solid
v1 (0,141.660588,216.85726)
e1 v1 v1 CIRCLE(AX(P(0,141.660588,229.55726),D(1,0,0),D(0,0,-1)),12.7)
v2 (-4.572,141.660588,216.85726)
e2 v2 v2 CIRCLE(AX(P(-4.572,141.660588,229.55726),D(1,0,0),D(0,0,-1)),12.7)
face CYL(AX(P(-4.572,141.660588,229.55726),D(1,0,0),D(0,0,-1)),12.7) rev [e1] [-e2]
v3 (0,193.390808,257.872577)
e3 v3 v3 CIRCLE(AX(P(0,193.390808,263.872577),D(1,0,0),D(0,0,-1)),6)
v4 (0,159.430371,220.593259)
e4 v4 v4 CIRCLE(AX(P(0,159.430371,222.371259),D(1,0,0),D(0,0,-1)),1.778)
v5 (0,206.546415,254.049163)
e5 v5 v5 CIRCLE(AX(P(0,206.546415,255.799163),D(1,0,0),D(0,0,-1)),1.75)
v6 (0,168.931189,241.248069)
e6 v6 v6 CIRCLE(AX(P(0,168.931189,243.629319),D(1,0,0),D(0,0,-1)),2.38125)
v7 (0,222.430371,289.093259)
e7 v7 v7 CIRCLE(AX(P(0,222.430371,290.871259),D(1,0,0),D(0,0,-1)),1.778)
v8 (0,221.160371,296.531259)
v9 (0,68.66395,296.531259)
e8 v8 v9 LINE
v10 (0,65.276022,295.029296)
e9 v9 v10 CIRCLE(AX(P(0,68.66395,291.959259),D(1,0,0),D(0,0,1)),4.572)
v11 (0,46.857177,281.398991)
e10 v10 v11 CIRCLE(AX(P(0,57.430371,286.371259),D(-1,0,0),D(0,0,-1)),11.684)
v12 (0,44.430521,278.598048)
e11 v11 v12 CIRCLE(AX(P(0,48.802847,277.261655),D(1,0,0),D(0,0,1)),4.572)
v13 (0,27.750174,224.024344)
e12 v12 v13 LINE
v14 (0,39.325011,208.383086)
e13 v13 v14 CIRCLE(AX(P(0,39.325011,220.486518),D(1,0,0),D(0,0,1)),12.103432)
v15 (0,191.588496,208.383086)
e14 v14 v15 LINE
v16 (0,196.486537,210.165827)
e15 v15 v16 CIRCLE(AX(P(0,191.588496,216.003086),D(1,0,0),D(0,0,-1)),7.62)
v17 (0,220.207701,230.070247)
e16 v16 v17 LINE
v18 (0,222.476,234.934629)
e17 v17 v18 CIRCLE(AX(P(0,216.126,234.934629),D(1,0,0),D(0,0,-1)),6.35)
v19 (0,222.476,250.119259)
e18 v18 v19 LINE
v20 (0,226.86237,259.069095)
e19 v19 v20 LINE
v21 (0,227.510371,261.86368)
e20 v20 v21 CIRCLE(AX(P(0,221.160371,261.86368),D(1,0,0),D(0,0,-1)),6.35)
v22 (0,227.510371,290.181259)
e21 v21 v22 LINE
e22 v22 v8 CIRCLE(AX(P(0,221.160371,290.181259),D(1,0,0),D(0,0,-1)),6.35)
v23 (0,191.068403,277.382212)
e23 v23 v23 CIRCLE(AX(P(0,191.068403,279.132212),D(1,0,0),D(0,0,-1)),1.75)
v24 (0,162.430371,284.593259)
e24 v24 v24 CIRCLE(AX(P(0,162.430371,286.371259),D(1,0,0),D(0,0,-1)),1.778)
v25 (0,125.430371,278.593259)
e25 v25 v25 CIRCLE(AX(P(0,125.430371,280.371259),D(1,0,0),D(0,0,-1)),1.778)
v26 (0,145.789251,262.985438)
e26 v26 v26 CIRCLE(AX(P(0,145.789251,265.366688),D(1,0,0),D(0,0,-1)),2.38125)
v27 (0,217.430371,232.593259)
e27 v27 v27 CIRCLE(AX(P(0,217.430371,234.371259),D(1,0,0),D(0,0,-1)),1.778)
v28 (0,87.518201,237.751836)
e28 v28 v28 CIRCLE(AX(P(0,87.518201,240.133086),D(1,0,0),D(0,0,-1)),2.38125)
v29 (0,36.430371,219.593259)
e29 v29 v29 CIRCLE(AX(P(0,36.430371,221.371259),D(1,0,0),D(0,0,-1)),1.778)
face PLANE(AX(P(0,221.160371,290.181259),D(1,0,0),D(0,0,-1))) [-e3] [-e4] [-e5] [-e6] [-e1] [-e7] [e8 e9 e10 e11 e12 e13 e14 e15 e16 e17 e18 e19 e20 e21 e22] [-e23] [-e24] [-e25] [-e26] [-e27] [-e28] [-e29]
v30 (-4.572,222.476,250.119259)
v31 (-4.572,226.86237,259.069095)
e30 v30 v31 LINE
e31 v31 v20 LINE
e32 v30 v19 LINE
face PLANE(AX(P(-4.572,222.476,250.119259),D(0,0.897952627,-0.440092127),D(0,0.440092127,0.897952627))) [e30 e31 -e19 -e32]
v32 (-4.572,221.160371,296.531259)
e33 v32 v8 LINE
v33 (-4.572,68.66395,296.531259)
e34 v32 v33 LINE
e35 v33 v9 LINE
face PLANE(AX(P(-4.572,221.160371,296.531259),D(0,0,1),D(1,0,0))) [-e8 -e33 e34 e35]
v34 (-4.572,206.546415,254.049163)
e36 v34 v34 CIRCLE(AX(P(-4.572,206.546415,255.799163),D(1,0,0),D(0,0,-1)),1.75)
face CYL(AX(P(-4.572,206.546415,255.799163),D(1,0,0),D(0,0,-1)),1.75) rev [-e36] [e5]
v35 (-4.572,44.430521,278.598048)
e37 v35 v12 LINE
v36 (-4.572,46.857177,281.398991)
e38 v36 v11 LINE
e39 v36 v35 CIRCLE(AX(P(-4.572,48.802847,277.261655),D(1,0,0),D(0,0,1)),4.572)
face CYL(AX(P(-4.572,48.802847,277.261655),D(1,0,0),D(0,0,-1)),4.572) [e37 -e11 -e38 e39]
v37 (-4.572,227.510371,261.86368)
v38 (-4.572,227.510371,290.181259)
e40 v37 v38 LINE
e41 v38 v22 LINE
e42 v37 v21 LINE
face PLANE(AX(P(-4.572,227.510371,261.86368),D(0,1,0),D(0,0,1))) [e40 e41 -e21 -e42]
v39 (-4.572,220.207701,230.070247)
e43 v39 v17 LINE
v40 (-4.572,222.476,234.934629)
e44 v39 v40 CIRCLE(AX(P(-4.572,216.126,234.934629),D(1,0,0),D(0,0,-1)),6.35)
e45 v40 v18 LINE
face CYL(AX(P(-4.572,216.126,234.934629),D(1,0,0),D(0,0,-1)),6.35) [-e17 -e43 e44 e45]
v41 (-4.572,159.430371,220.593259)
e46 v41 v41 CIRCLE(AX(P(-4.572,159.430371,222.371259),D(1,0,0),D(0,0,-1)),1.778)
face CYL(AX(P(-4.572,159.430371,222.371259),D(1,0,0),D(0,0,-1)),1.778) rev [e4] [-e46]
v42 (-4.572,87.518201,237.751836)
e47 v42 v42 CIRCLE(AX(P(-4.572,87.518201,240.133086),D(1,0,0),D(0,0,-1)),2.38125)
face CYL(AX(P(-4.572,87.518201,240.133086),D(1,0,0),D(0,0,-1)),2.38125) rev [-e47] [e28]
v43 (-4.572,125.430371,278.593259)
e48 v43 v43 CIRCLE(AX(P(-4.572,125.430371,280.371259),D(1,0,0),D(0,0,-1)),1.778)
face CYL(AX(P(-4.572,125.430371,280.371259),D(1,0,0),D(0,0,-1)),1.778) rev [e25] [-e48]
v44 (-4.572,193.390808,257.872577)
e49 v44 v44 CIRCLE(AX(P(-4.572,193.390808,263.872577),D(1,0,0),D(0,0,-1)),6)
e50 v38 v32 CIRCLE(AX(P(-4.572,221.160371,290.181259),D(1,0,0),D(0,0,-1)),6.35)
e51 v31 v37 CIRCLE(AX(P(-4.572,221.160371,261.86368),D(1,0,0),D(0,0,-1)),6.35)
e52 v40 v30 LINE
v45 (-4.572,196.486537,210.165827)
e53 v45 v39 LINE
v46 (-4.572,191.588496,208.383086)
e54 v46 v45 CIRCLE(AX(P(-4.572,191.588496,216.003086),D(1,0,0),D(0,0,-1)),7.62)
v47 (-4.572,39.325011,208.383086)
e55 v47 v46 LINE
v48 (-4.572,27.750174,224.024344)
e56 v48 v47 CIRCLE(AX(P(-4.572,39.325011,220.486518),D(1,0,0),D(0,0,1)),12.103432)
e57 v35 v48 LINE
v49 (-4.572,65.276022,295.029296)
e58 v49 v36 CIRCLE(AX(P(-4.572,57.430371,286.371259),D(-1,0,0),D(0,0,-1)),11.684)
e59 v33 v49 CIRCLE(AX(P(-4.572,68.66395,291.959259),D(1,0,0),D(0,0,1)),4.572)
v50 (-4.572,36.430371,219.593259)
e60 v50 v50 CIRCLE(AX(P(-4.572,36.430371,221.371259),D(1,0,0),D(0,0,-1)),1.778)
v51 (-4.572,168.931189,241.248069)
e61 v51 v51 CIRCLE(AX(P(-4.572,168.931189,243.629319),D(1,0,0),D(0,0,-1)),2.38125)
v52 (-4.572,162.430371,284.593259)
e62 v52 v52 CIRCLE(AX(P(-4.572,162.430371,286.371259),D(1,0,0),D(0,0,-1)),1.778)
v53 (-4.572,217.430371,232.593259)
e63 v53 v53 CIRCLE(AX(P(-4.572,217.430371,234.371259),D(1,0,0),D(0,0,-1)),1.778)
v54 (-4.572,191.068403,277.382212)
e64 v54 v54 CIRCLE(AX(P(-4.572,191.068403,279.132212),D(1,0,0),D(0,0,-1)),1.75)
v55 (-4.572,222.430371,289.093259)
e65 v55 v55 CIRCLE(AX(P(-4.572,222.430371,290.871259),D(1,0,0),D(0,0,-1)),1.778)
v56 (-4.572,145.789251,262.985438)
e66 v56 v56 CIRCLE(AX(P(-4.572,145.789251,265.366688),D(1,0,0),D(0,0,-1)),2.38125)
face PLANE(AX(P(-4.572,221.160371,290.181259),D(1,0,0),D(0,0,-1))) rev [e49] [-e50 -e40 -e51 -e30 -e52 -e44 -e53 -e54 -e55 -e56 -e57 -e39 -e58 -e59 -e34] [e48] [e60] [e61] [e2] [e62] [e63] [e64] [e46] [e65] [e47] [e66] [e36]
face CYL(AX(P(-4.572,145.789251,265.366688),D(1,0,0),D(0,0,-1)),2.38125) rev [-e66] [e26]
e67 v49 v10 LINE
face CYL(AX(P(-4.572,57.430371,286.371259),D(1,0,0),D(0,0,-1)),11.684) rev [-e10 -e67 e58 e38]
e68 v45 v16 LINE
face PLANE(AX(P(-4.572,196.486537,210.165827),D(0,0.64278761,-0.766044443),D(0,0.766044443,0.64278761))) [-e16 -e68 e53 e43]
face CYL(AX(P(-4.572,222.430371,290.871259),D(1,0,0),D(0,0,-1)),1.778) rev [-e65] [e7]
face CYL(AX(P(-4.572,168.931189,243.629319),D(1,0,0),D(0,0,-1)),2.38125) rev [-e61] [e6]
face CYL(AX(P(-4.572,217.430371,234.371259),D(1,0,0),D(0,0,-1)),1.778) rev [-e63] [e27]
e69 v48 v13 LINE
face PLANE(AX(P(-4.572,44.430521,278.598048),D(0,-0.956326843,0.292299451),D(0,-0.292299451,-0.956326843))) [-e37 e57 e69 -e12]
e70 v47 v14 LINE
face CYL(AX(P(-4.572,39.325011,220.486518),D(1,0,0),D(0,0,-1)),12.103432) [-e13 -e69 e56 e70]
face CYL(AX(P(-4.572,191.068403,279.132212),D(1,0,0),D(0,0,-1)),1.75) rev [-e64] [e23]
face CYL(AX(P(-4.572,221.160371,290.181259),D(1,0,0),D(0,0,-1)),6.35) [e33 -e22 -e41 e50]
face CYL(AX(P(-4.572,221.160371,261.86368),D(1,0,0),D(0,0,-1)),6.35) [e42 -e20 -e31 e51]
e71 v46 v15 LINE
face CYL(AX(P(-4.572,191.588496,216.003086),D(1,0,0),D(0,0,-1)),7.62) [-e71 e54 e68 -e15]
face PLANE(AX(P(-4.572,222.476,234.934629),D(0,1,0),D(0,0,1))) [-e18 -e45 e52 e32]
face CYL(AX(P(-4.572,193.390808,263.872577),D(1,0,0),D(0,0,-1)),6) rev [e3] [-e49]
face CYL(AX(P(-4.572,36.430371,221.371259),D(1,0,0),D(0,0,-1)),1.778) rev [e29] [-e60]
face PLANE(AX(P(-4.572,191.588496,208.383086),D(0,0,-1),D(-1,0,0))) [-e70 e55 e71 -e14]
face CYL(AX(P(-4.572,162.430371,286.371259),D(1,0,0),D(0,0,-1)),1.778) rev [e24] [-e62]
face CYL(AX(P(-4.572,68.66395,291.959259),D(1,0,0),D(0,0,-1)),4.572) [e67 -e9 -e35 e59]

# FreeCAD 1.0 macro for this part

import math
import FreeCAD as App
import Part
import Sketcher
Q = App.Units.Quantity

doc = App.newDocument("Part")
params = doc.addObject("Spreadsheet::Sheet", "Params")
for row, (alias, value) in enumerate([
    ("sketch1_diameter", "1 in"),
    ("sketch1_radius", "0.3 in"),
    ("sketch1_diameter2", "0.14 in"),
    ("sketch1_radius2", "0.25 in"),
    ("sketch1_radius3", "0.18 in"),
    ("pad1_length", "0.18 in"),
], start=1):
    params.set(f"A{row}", alias)
    params.set(f"B{row}", "=" + value)
    params.setAlias(f"B{row}", alias)

body = doc.addObject("PartDesign::Body", "Body")

sketch1 = body.newObject("Sketcher::SketchObject", "Sketch")
sketch1.AttachmentSupport = (doc.getObject("YZ_Plane"), [""])
sketch1.MapMode = "FlatFace"
sketch1.addGeometry([
    Part.LineSegment(App.Vector(44.4, 278.6, 0), App.Vector(27.8, 224, 0)),
    Part.ArcOfCircle(Part.Circle(App.Vector(39.3, 220.5, 0), App.Vector(0, 0, 1), 12.1), math.radians(163), math.radians(270)),
    Part.LineSegment(App.Vector(39.3, 208.4, 0), App.Vector(191.6, 208.4, 0)),
    Part.ArcOfCircle(Part.Circle(App.Vector(191.6, 216, 0), App.Vector(0, 0, 1), 7.6), math.radians(-90), math.radians(-50)),
    Part.LineSegment(App.Vector(196.5, 210.2, 0), App.Vector(220.2, 230.1, 0)),
    Part.ArcOfCircle(Part.Circle(App.Vector(216.1, 234.9, 0), App.Vector(0, 0, 1), 6.3), math.radians(-50), math.radians(0)),
    Part.LineSegment(App.Vector(222.5, 234.9, 0), App.Vector(222.5, 250.1, 0)),
    Part.LineSegment(App.Vector(222.5, 250.1, 0), App.Vector(226.9, 259.1, 0)),
    Part.ArcOfCircle(Part.Circle(App.Vector(221.2, 261.9, 0), App.Vector(0, 0, 1), 6.4), math.radians(-26), math.radians(0)),
    Part.LineSegment(App.Vector(227.5, 261.9, 0), App.Vector(227.5, 290.2, 0)),
    Part.ArcOfCircle(Part.Circle(App.Vector(221.2, 290.2, 0), App.Vector(0, 0, 1), 6.3), math.radians(0), math.radians(90)),
    Part.LineSegment(App.Vector(221.2, 296.5, 0), App.Vector(68.7, 296.5, 0)),
    Part.ArcOfCircle(Part.Circle(App.Vector(68.7, 292, 0), App.Vector(0, 0, 1), 4.6), math.radians(90), math.radians(138)),
    Part.ArcOfCircle(Part.Circle(App.Vector(57.4, 286.4, 0), App.Vector(0, 0, 1), 11.7), math.radians(-155), math.radians(48)),
    Part.ArcOfCircle(Part.Circle(App.Vector(48.8, 277.3, 0), App.Vector(0, 0, 1), 4.6), math.radians(115), math.radians(163)),
    Part.Circle(App.Vector(125.4, 280.4, 0), App.Vector(0, 0, 1), 1.8),
    Part.Circle(App.Vector(36.4, 221.4, 0), App.Vector(0, 0, 1), 1.8),
    Part.Circle(App.Vector(87.5, 240.1, 0), App.Vector(0, 0, 1), 2.4),
    Part.Circle(App.Vector(162.4, 286.4, 0), App.Vector(0, 0, 1), 1.8),
    Part.Circle(App.Vector(145.8, 265.4, 0), App.Vector(0, 0, 1), 2.4),
    Part.Circle(App.Vector(191.1, 279.1, 0), App.Vector(0, 0, 1), 1.8),
    Part.Circle(App.Vector(222.4, 290.9, 0), App.Vector(0, 0, 1), 1.8),
    Part.Circle(App.Vector(193.4, 263.9, 0), App.Vector(0, 0, 1), 6),
    Part.Circle(App.Vector(206.5, 255.8, 0), App.Vector(0, 0, 1), 1.8),
    Part.Circle(App.Vector(168.9, 243.6, 0), App.Vector(0, 0, 1), 2.4),
    Part.Circle(App.Vector(141.7, 229.6, 0), App.Vector(0, 0, 1), 12.7),
    Part.Circle(App.Vector(159.4, 222.4, 0), App.Vector(0, 0, 1), 1.8),
    Part.Circle(App.Vector(217.4, 234.4, 0), App.Vector(0, 0, 1), 1.8),
], False)
sketch1.addConstraint([
    Sketcher.Constraint("Tangent", 0, 2, 1, 1),
    Sketcher.Constraint("Tangent", 1, 2, 2, 1),
    Sketcher.Constraint("Tangent", 2, 2, 3, 1),
    Sketcher.Constraint("Tangent", 3, 2, 4, 1),
    Sketcher.Constraint("Tangent", 4, 2, 5, 1),
    Sketcher.Constraint("Tangent", 5, 2, 6, 1),
    Sketcher.Constraint("Coincident", 6, 2, 7, 1),
    Sketcher.Constraint("Tangent", 7, 2, 8, 1),
    Sketcher.Constraint("Tangent", 8, 2, 9, 1),
    Sketcher.Constraint("Tangent", 9, 2, 10, 1),
    Sketcher.Constraint("Tangent", 10, 2, 11, 1),
    Sketcher.Constraint("Tangent", 11, 2, 12, 1),
    Sketcher.Constraint("Coincident", 12, 2, 13, 2),
    Sketcher.Constraint("Coincident", 13, 1, 14, 1),
    Sketcher.Constraint("Tangent", 14, 2, 0, 1),
    Sketcher.Constraint("Horizontal", 2),
    Sketcher.Constraint("Vertical", 6),
    Sketcher.Constraint("Vertical", 9),
    Sketcher.Constraint("Horizontal", 11),
    Sketcher.Constraint("Equal", 5, 8),
    Sketcher.Constraint("Equal", 8, 10),
    Sketcher.Constraint("Equal", 12, 14),
    Sketcher.Constraint("Equal", 15, 16),
    Sketcher.Constraint("Equal", 16, 18),
    Sketcher.Constraint("Equal", 17, 19),
    Sketcher.Constraint("Equal", 18, 21),
    Sketcher.Constraint("Equal", 20, 23),
    Sketcher.Constraint("Equal", 19, 24),
    Sketcher.Constraint("Equal", 21, 26),
    Sketcher.Constraint("Equal", 26, 27),
    Sketcher.Constraint("Horizontal", 13, 3, 18, 3),
    Sketcher.Constraint("Diameter", 25, Q("1 in")),
    Sketcher.Constraint("Radius", 3, Q("0.3 in")),
    Sketcher.Constraint("Diameter", 15, Q("0.14 in")),
    Sketcher.Constraint("Radius", 5, Q("0.25 in")),
    Sketcher.Constraint("Radius", 12, Q("0.18 in")),
    Sketcher.Constraint("Radius", 13, Q("0.46 in")),
    Sketcher.Constraint("Diameter", 17, Q("0.1875 in")),
    Sketcher.Constraint("Angle", 4, Q("40 deg")),
    Sketcher.Constraint("DistanceX", 21, 3, 9, 2, Q("0.2 in")),
    Sketcher.Constraint("DistanceY", 13, 3, 11, 2, Q("0.4 in")),
    Sketcher.Constraint("Diameter", 20, Q("3.5 mm")),
    Sketcher.Constraint("Diameter", 22, Q("12 mm")),
    Sketcher.Constraint("DistanceY", 1, 2, 17, 3, Q("1.25 in")),
    Sketcher.Constraint("DistanceY", 27, 3, 6, 2, Q("0.62 in")),
    Sketcher.Constraint("Radius", 1, Q("12.103432 mm")),
    Sketcher.Constraint("DistanceX", 19, 3, 24, 3, Q("0.9110999 in")),
    Sketcher.Constraint("DistanceX", 11, 2, 11, 1, Q("152.496421 mm")),
    Sketcher.Constraint("DistanceY", 6, 1, 6, 2, Q("15.18463 mm")),
    Sketcher.Constraint("DistanceY", 9, 1, 9, 2, Q("28.317579 mm")),
    Sketcher.Constraint("DistanceX", -1, 1, 5, 3, Q("216.126 mm")),
    Sketcher.Constraint("DistanceX", -1, 1, 17, 3, Q("87.518201 mm")),
    Sketcher.Constraint("DistanceX", 13, 3, 10, 3, Q("163.73 mm")),
    Sketcher.Constraint("DistanceY", 15, 3, 12, 3, Q("11.588 mm")),
    Sketcher.Constraint("DistanceX", 13, 3, 15, 3, Q("68 mm")),
    Sketcher.Constraint("DistanceX", 16, 3, 13, 3, Q("21 mm")),
    Sketcher.Constraint("DistanceY", 16, 3, 13, 3, Q("65 mm")),
    Sketcher.Constraint("DistanceX", 15, 3, 18, 3, Q("37 mm")),
    Sketcher.Constraint("DistanceY", 10, 3, 21, 3, Q("0.69 mm")),
    Sketcher.Constraint("DistanceX", 25, 3, 24, 3, Q("27.270601 mm")),
    Sketcher.Constraint("DistanceY", 25, 3, 15, 3, Q("50.813999 mm")),
    Sketcher.Constraint("DistanceY", 26, 3, 25, 3, Q("7.186001 mm")),
    Sketcher.Constraint("DistanceX", 27, 3, 8, 3, Q("3.73 mm")),
    Sketcher.Constraint("DistanceX", 8, 3, 7, 2, Q("5.701999 mm")),
    Sketcher.Constraint("DistanceX", 14, 2, 12, 2, Q("20.845501 mm")),
    Sketcher.Constraint("Distance", 4, Q("30.96578 mm")),
    Sketcher.Constraint("DistanceX", 2, 1, 2, 2, Q("152.263485 mm")),
    Sketcher.Constraint("DistanceY", -1, 1, 5, 3, Q("234.934629 mm")),
    Sketcher.Constraint("DistanceX", -1, 1, 8, 3, Q("221.160371 mm")),
    Sketcher.Constraint("DistanceX", -1, 1, 19, 3, Q("145.789251 mm")),
    Sketcher.Constraint("DistanceY", -1, 1, 19, 3, Q("265.366688 mm")),
    Sketcher.Constraint("DistanceY", -1, 1, 20, 3, Q("279.132212 mm")),
    Sketcher.Constraint("DistanceX", -1, 1, 22, 3, Q("193.390808 mm")),
    Sketcher.Constraint("DistanceY", -1, 1, 24, 3, Q("243.629319 mm")),
    Sketcher.Constraint("DistanceX", -1, 1, 26, 3, Q("159.430371 mm")),
    Sketcher.Constraint("DistanceY", -1, 1, 13, 1, Q("281.398991 mm")),
    Sketcher.Constraint("DistanceX", 19, 3, 20, 3, Q("45.279152 mm")),
    Sketcher.Constraint("DistanceY", 5, 3, 22, 3, Q("28.937948 mm")),
    Sketcher.Constraint("DistanceX", 20, 3, 23, 3, Q("15.478012 mm")),
    Sketcher.Constraint("DistanceY", 23, 3, 20, 3, Q("23.333048 mm")),
])
sketch1.setExpression("Constraints[31]", "Params.sketch1_diameter")
sketch1.setExpression("Constraints[32]", "Params.sketch1_radius")
sketch1.setExpression("Constraints[33]", "Params.sketch1_diameter2")
sketch1.setExpression("Constraints[34]", "Params.sketch1_radius2")
sketch1.setExpression("Constraints[35]", "Params.sketch1_radius3")
pad1 = body.newObject("PartDesign::Pad", "Pad")
pad1.Profile = sketch1
pad1.setExpression("Length", "Params.pad1_length")
pad1.Reversed = True

doc.recompute()
